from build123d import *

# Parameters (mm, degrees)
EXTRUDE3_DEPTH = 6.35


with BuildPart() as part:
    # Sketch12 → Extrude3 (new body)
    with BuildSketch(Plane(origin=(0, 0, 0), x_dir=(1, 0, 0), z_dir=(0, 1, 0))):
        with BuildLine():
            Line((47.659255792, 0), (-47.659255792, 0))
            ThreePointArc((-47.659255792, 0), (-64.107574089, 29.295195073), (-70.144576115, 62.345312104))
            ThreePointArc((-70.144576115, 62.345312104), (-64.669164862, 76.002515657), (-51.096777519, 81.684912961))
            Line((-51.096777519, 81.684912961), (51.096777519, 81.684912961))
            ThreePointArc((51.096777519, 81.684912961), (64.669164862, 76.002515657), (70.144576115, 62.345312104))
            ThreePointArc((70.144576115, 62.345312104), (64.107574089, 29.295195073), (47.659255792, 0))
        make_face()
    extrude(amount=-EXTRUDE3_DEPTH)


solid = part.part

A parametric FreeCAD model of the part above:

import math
import FreeCAD as App
import Part
import Sketcher

V = App.Vector
Q = App.Units.Quantity

doc = App.newDocument("Part")
body = doc.addObject("PartDesign::Body", "Body")

sketch1 = body.newObject("Sketcher::SketchObject", "Sketch")
sketch1.AttachmentSupport = (doc.getObject("XZ_Plane"), [""])
sketch1.MapMode = "FlatFace"
sketch1.addGeometry([
    Part.LineSegment(V(-47.659256, 0, 0), V(47.659256, 0, 0)),
    Part.ArcOfCircle(Part.Circle(V(-31.829706, -63.895719, 0), V(0, 0, 1), 101.986067), math.radians(0.871052), math.radians(38.793412)),
    Part.ArcOfCircle(Part.Circle(V(51.096778, -62.634913, 0), V(0, 0, 1), 19.05), math.radians(-90), math.radians(0.871052)),
    Part.LineSegment(V(51.096778, -81.684913, 0), V(-51.096778, -81.684913, 0)),
    Part.ArcOfCircle(Part.Circle(V(-51.096778, -62.634913, 0), V(0, 0, 1), 19.05), math.radians(179.128948), math.radians(270)),
    Part.ArcOfCircle(Part.Circle(V(31.829706, -63.895719, 0), V(0, 0, 1), 101.986067), math.radians(141.206588), math.radians(179.128948)),
], False)
sketch1.addConstraint([
    Sketcher.Constraint("Coincident", 0, 2, 1, 2),
    Sketcher.Constraint("Coincident", 1, 1, 2, 2),
    Sketcher.Constraint("Coincident", 2, 1, 3, 1),
    Sketcher.Constraint("Coincident", 3, 2, 4, 2),
    Sketcher.Constraint("Coincident", 4, 1, 5, 2),
    Sketcher.Constraint("Coincident", 5, 1, 0, 1),
    Sketcher.Constraint("Horizontal", 0),
    Sketcher.Constraint("Horizontal", 3),
    Sketcher.Constraint("PointOnObject", 0, 2, -1),
    Sketcher.Constraint("Radius", 2, Q("0.75 in")),
    Sketcher.Constraint("Radius", 4, Q("0.75 in")),
    Sketcher.Constraint("Radius", 1, 101.986067),
    Sketcher.Constraint("Radius", 5, 101.986067),
    Sketcher.Constraint("DistanceX", 0, 1, 0, 2, 95.318512),
    Sketcher.Constraint("DistanceX", 2, 3, 1, 1, 19.047799),
    Sketcher.Constraint("DistanceX", 2, 1, 1, 1, 19.047799),
    Sketcher.Constraint("DistanceX", 4, 1, 4, 3, 19.047799),
    Sketcher.Constraint("DistanceX", 4, 1, 3, 2, 19.047799),
    Sketcher.Constraint("DistanceX", 3, 2, 3, 1, 102.193555),
    Sketcher.Constraint("DistanceY", 1, 3, -1, 1, 63.895719),
    Sketcher.Constraint("DistanceY", 5, 3, -1, 1, 63.895719),
    Sketcher.Constraint("DistanceX", 1, 3, -1, 1, 31.829706),
])
pad1 = body.newObject("PartDesign::Pad", "Pad")
pad1.Profile = sketch1
pad1.Length = Q("0.25 in")

doc.recompute()
